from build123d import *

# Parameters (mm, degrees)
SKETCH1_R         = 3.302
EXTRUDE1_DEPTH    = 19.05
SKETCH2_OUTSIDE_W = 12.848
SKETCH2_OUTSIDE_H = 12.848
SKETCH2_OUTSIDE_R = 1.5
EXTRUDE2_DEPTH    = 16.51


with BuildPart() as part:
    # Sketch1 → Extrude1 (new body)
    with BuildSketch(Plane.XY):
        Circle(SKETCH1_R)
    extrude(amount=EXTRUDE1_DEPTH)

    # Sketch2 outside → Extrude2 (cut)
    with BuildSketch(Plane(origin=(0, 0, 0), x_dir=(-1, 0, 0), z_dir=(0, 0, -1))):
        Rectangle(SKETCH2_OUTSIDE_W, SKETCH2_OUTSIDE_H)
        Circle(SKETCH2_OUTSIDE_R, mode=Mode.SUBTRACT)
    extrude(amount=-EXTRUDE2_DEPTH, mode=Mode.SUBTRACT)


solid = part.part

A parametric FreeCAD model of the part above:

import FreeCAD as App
import Part
import Sketcher
from FreeCAD import Vector
Q = App.Units.Quantity


def add_polygon(sketch, points):
    """Adds a closed chain of lines whose ends are joined by coincident constraints."""
    first, n = sketch.GeometryCount, len(points)
    for a, b in zip(points, points[1:] + points[:1]):
        sketch.addGeometry(Part.LineSegment(App.Vector(*a, 0), App.Vector(*b, 0)), False)
    for i in range(n):
        sketch.addConstraint(Sketcher.Constraint("Coincident", first + i, 2, first + (i + 1) % n, 1))

doc = App.newDocument("Part")
params = doc.addObject("Spreadsheet::Sheet", "Params")
for row, (alias, value) in enumerate([
    ("sketch1_diameter", "0.26 in"),
    ("pad1_length", "0.75 in"),
    ("pocket1_length", "0.65 in"),
], start=1):
    params.set(f"A{row}", alias)
    params.set(f"B{row}", "=" + value)
    params.setAlias(f"B{row}", alias)

body = doc.addObject("PartDesign::Body", "Body")

sketch1 = body.newObject("Sketcher::SketchObject", "Sketch")
sketch1.AttachmentSupport = (doc.getObject("XY_Plane"), [""])
sketch1.MapMode = "FlatFace"
sketch1.addGeometry(Part.Circle(Vector(0, 0, 0), Vector(0, 0, 1), 3.3), False)
sketch1.addConstraint([
    Sketcher.Constraint("Coincident", 0, 3, -1, 1),
    Sketcher.Constraint("Diameter", 0, Q("0.26 in")),
])
sketch1.setExpression("Constraints[1]", "Params.sketch1_diameter")
pad1 = body.newObject("PartDesign::Pad", "Pad")
pad1.Profile = sketch1
pad1.setExpression("Length", "Params.pad1_length")

sketch2 = body.newObject("Sketcher::SketchObject", "Sketch001")
sketch2.AttachmentSupport = (doc.getObject("XY_Plane"), [""])
sketch2.MapMode = "FlatFace"
add_polygon(sketch2, [(6.4, 6.4), (6.4, -6.4), (-6.4, -6.4), (-6.4, 6.4)])
sketch2.addGeometry(Part.Circle(Vector(0, 0, 0), Vector(0, 0, 1), 1.5), False)
sketch2.addConstraint([
    Sketcher.Constraint("Vertical", 0),
    Sketcher.Constraint("Horizontal", 1),
    Sketcher.Constraint("Vertical", 2),
    Sketcher.Constraint("Horizontal", 3),
    Sketcher.Constraint("Coincident", 4, 3, -1, 1),
    Sketcher.Constraint("Symmetric", 0, 2, 2, 2, -1, 1),
    Sketcher.Constraint("Equal", 3, 0),
    Sketcher.Constraint("Diameter", 4, Q("3 mm")),
    Sketcher.Constraint("DistanceX", 1, 2, 1, 1, Q("12.848 mm")),
])
pocket1 = body.newObject("PartDesign::Pocket", "Pocket")
pocket1.Profile = sketch2
pocket1.setExpression("Length", "Params.pocket1_length")
pocket1.Reversed = True

doc.recompute()
